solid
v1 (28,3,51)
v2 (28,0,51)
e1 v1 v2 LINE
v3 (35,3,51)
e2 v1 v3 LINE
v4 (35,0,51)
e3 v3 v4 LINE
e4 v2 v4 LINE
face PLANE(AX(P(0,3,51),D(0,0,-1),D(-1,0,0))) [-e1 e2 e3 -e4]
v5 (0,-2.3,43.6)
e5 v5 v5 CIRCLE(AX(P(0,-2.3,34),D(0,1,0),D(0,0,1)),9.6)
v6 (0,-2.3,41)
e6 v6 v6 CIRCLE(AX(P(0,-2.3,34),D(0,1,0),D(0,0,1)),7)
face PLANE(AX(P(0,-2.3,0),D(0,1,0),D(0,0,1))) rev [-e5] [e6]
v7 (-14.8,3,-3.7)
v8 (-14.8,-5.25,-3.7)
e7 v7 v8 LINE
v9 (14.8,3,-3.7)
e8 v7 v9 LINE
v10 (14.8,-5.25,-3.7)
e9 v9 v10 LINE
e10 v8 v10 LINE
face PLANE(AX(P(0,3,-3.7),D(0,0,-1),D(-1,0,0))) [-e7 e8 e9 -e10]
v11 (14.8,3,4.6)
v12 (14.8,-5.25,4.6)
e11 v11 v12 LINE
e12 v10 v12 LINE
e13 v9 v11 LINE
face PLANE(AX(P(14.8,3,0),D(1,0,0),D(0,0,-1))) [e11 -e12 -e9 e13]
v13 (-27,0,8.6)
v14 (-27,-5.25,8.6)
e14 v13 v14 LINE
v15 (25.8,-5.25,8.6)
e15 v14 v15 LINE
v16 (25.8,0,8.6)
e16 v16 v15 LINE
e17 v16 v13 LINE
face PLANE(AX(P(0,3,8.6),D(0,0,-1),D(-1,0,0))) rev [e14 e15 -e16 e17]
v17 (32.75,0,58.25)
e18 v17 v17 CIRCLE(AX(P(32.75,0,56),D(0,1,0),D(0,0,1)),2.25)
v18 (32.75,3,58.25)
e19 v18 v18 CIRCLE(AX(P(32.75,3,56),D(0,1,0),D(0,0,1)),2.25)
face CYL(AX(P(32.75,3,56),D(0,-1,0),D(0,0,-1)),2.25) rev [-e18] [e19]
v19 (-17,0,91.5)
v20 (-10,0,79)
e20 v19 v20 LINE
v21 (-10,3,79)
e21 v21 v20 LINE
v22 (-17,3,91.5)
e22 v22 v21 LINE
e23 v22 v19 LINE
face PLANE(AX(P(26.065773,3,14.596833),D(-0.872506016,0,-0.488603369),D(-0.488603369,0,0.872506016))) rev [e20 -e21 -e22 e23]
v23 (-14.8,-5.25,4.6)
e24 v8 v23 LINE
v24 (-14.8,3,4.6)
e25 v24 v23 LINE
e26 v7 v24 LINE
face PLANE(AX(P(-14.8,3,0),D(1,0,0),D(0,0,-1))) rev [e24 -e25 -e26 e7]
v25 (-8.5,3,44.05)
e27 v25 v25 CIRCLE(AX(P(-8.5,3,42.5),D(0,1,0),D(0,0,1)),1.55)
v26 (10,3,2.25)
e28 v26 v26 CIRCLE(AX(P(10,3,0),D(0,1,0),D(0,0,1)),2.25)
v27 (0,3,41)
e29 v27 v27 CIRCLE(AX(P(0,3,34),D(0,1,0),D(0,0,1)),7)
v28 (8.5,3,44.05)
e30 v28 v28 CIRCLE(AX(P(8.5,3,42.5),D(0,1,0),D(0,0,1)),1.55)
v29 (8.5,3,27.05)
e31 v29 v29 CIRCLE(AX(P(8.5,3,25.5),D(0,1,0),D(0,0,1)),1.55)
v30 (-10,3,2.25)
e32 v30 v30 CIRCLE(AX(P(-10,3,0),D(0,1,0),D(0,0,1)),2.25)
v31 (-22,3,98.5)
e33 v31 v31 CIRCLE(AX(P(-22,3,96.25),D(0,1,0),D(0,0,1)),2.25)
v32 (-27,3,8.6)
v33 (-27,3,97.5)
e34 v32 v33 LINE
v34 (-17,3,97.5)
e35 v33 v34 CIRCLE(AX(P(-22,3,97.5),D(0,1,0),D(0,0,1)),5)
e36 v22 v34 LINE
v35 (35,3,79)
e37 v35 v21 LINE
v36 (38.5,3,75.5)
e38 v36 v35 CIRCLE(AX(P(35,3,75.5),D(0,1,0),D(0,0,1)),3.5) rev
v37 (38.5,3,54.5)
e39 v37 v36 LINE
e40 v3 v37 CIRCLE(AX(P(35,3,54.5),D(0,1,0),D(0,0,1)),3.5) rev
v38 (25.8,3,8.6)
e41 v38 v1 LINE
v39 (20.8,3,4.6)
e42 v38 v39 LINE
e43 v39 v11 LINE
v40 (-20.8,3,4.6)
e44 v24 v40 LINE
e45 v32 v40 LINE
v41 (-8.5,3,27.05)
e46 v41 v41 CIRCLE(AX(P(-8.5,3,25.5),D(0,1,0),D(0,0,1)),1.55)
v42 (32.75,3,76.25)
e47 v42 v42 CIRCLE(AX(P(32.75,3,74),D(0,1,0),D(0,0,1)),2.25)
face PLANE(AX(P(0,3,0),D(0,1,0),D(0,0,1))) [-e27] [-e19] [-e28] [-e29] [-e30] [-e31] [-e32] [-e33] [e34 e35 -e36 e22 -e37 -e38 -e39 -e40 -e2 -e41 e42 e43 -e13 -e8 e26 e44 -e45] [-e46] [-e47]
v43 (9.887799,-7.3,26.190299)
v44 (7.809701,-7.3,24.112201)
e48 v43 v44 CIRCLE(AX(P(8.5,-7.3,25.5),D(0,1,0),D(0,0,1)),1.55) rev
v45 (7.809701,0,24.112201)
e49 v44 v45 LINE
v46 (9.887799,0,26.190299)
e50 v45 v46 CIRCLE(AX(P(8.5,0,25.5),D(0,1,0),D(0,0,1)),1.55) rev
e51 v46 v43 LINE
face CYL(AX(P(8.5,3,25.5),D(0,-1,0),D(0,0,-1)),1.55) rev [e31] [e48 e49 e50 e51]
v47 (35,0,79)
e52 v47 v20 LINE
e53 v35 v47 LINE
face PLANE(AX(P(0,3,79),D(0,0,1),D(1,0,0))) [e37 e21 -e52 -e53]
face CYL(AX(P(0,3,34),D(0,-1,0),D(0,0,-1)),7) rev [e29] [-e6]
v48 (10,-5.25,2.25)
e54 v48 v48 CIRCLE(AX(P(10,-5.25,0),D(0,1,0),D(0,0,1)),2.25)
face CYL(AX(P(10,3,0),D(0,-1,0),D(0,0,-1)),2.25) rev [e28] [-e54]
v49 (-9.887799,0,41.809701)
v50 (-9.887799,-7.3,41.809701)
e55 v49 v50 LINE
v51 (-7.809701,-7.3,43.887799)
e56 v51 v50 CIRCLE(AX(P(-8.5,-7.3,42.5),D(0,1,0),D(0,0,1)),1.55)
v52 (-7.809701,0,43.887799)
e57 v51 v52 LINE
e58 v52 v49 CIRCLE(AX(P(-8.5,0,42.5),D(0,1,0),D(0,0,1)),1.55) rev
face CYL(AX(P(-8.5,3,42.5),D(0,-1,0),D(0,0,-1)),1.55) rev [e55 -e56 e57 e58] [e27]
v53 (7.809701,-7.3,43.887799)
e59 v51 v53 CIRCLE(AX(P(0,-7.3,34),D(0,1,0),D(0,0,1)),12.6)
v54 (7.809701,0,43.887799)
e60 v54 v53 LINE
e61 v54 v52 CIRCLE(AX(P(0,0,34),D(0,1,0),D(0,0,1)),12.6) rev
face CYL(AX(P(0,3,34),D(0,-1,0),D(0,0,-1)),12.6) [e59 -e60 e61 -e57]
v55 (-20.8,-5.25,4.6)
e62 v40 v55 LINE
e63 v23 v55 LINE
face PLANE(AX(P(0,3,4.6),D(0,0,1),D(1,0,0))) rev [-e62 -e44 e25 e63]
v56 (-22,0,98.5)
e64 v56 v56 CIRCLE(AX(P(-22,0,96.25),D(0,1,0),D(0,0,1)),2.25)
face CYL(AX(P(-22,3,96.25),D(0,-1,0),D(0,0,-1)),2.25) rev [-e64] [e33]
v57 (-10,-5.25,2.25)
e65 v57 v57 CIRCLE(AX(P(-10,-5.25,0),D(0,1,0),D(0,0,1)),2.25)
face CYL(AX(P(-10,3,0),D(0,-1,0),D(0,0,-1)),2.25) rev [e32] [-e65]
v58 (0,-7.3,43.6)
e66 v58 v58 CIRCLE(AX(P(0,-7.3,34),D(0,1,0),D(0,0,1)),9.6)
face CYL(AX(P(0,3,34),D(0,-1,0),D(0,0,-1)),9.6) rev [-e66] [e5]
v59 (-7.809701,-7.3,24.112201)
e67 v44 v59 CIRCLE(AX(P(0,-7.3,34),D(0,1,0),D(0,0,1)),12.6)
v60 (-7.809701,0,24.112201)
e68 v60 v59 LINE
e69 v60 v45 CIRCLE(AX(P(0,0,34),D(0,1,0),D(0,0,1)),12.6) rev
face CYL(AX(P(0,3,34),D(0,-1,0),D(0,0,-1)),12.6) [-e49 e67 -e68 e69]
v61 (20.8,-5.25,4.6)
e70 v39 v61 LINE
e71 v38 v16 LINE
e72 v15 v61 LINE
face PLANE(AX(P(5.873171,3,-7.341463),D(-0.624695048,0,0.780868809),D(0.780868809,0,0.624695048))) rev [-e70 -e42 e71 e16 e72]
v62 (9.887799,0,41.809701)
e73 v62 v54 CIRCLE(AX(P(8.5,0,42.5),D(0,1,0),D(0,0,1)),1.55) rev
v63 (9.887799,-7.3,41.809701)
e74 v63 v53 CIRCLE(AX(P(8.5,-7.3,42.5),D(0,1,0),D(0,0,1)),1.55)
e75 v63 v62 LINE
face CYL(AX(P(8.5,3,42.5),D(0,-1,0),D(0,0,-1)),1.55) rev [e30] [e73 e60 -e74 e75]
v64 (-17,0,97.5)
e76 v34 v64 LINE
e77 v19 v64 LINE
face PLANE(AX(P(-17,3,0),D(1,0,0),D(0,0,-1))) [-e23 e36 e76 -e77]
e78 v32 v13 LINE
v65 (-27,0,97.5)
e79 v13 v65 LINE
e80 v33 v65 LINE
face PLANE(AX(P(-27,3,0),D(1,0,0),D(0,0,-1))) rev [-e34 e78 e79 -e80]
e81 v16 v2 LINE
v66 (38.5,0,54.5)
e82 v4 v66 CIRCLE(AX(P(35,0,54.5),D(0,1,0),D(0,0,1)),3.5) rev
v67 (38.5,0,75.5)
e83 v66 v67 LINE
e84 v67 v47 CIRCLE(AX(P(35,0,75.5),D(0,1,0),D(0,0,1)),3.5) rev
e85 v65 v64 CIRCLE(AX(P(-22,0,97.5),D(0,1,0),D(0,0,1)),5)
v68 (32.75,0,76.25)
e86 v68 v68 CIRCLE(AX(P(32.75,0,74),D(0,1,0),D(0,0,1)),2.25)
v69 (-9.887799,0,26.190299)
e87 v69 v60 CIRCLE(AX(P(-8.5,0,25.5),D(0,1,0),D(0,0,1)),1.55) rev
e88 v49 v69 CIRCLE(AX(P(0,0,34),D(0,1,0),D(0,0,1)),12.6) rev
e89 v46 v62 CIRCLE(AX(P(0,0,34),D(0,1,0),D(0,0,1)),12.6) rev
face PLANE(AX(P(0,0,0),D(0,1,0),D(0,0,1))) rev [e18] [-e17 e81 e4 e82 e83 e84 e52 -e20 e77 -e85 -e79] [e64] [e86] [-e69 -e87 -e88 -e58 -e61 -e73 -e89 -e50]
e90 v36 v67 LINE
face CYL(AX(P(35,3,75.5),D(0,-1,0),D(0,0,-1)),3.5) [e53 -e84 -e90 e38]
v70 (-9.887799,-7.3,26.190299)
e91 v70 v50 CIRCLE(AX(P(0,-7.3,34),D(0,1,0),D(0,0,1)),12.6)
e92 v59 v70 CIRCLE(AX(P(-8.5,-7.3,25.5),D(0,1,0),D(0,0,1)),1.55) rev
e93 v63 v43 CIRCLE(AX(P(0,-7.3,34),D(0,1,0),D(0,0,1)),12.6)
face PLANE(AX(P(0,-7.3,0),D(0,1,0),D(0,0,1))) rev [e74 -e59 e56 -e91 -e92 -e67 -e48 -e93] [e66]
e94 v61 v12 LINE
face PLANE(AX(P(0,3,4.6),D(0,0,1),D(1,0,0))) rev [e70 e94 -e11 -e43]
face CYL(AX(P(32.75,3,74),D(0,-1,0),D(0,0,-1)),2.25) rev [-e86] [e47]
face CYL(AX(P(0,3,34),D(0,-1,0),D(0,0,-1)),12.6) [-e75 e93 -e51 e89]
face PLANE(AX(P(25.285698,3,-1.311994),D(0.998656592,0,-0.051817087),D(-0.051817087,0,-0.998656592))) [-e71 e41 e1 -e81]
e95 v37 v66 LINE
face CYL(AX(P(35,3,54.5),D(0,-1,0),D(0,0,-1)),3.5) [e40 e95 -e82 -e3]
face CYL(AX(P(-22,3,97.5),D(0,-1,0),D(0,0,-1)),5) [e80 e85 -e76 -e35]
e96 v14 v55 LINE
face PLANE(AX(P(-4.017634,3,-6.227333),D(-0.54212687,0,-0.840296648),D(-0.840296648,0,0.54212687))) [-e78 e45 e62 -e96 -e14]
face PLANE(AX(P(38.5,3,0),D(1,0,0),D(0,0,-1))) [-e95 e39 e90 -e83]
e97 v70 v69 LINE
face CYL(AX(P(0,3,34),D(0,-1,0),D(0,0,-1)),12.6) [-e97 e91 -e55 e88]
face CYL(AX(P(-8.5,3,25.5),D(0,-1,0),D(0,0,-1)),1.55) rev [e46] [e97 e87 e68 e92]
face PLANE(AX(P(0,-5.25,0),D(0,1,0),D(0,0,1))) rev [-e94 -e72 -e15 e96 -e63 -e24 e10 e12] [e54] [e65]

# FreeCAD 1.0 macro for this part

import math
import FreeCAD as App
import Part
import Sketcher
from FreeCAD import Vector
Q = App.Units.Quantity

doc = App.newDocument("Part")
body = doc.addObject("PartDesign::Body", "Body")

sketch1 = body.newObject("Sketcher::SketchObject", "Sketch")
sketch1.AttachmentSupport = (doc.getObject("XZ_Plane"), [""])
sketch1.MapMode = "FlatFace"
sketch1.addGeometry(Part.ArcOfCircle(Part.Circle(Vector(-22, 97.5, 0), Vector(0, 0, 1), 5), math.radians(0), math.radians(180)), False)
sketch1.addGeometry(Part.LineSegment(Vector(-17, 97.5, 0), Vector(-17, 91.5, 0)), False)
sketch1.addGeometry(Part.LineSegment(Vector(-17, 91.5, 0), Vector(-10, 79, 0)), False)
sketch1.addGeometry(Part.LineSegment(Vector(-10, 79, 0), Vector(35, 79, 0)), False)
sketch1.addGeometry(Part.ArcOfCircle(Part.Circle(Vector(35, 75.5, 0), Vector(0, 0, 1), 3.5), math.radians(0), math.radians(90)), False)
sketch1.addGeometry(Part.LineSegment(Vector(38.5, 75.5, 0), Vector(38.5, 54.5, 0)), False)
sketch1.addGeometry(Part.ArcOfCircle(Part.Circle(Vector(35, 54.5, 0), Vector(0, 0, 1), 3.5), math.radians(-90), math.radians(0)), False)
sketch1.addGeometry(Part.LineSegment(Vector(35, 51, 0), Vector(28, 51, 0)), False)
sketch1.addGeometry(Part.LineSegment(Vector(28, 51, 0), Vector(25.8, 8.6, 0)), False)
sketch1.addGeometry(Part.LineSegment(Vector(25.8, 8.6, 0), Vector(20.8, 4.6, 0)), False)
sketch1.addGeometry(Part.LineSegment(Vector(20.8, 4.6, 0), Vector(-20.8, 4.6, 0)), False)
sketch1.addGeometry(Part.LineSegment(Vector(-20.8, 4.6, 0), Vector(-27, 8.6, 0)), False)
sketch1.addGeometry(Part.LineSegment(Vector(-27, 8.6, 0), Vector(-27, 97.5, 0)), False)
sketch1.addGeometry(Part.Circle(Vector(-22, 96.25, 0), Vector(0, 0, 1), 2.25), False)
sketch1.addGeometry(Part.Circle(Vector(0, 34, 0), Vector(0, 0, 1), 12.6), False)
sketch1.addGeometry(Part.Circle(Vector(32.75, 56, 0), Vector(0, 0, 1), 2.25), False)
sketch1.addGeometry(Part.Circle(Vector(32.75, 74, 0), Vector(0, 0, 1), 2.25), False)
sketch1.addConstraint(Sketcher.Constraint("Tangent", 0, 1, 1, 1))
sketch1.addConstraint(Sketcher.Constraint("Coincident", 1, 2, 2, 1))
sketch1.addConstraint(Sketcher.Constraint("Coincident", 2, 2, 3, 1))
sketch1.addConstraint(Sketcher.Constraint("Tangent", 3, 2, 4, 2))
sketch1.addConstraint(Sketcher.Constraint("Tangent", 4, 1, 5, 1))
sketch1.addConstraint(Sketcher.Constraint("Tangent", 5, 2, 6, 2))
sketch1.addConstraint(Sketcher.Constraint("Tangent", 6, 1, 7, 1))
sketch1.addConstraint(Sketcher.Constraint("Coincident", 7, 2, 8, 1))
sketch1.addConstraint(Sketcher.Constraint("Coincident", 8, 2, 9, 1))
sketch1.addConstraint(Sketcher.Constraint("Coincident", 9, 2, 10, 1))
sketch1.addConstraint(Sketcher.Constraint("Coincident", 10, 2, 11, 1))
sketch1.addConstraint(Sketcher.Constraint("Coincident", 11, 2, 12, 1))
sketch1.addConstraint(Sketcher.Constraint("Tangent", 12, 2, 0, 2))
sketch1.addConstraint(Sketcher.Constraint("Vertical", 1))
sketch1.addConstraint(Sketcher.Constraint("Horizontal", 3))
sketch1.addConstraint(Sketcher.Constraint("Vertical", 5))
sketch1.addConstraint(Sketcher.Constraint("Horizontal", 7))
sketch1.addConstraint(Sketcher.Constraint("Horizontal", 10))
sketch1.addConstraint(Sketcher.Constraint("Vertical", 12))
sketch1.addConstraint(Sketcher.Constraint("Equal", 4, 6))
sketch1.addConstraint(Sketcher.Constraint("Equal", 13, 15))
sketch1.addConstraint(Sketcher.Constraint("Equal", 15, 16))
sketch1.addConstraint(Sketcher.Constraint("PointOnObject", 14, 3, -2))
sketch1.addConstraint(Sketcher.Constraint("Horizontal", 8, 2, 11, 2))
sketch1.addConstraint(Sketcher.Constraint("Vertical", 0, 3, 13, 3))
sketch1.addConstraint(Sketcher.Constraint("Vertical", 15, 3, 16, 3))
sketch1.addConstraint(Sketcher.Constraint("Radius", 0, Q("5 mm")))
sketch1.addConstraint(Sketcher.Constraint("Diameter", 13, Q("4.5 mm")))
sketch1.addConstraint(Sketcher.Constraint("Diameter", 14, Q("25.2 mm")))
sketch1.addConstraint(Sketcher.Constraint("Radius", 4, Q("3.5 mm")))
sketch1.addConstraint(Sketcher.Constraint("DistanceX", 3, 1, 3, 2, Q("45 mm")))
sketch1.addConstraint(Sketcher.Constraint("DistanceX", 7, 2, 7, 1, Q("7 mm")))
sketch1.addConstraint(Sketcher.Constraint("DistanceY", 1, 2, 1, 1, Q("6 mm")))
sketch1.addConstraint(Sketcher.Constraint("DistanceY", 5, 2, 5, 1, Q("21 mm")))
sketch1.addConstraint(Sketcher.Constraint("DistanceX", 10, 2, 10, 1, Q("41.6 mm")))
sketch1.addConstraint(Sketcher.Constraint("DistanceY", 12, 1, 12, 2, Q("88.9 mm")))
sketch1.addConstraint(Sketcher.Constraint("DistanceX", 0, 3, -1, 1, Q("22 mm")))
sketch1.addConstraint(Sketcher.Constraint("DistanceX", -1, 1, 4, 3, Q("35 mm")))
sketch1.addConstraint(Sketcher.Constraint("DistanceY", -1, 1, 14, 3, Q("34 mm")))
sketch1.addConstraint(Sketcher.Constraint("DistanceY", -1, 1, 15, 3, Q("56 mm")))
sketch1.addConstraint(Sketcher.Constraint("DistanceY", -1, 1, 16, 3, Q("74 mm")))
sketch1.addConstraint(Sketcher.Constraint("DistanceY", -1, 1, 2, 2, Q("79 mm")))
sketch1.addConstraint(Sketcher.Constraint("DistanceY", 4, 3, 0, 3, Q("22 mm")))
sketch1.addConstraint(Sketcher.Constraint("DistanceX", 9, 2, 8, 2, Q("5 mm")))
sketch1.addConstraint(Sketcher.Constraint("DistanceY", 9, 2, 8, 2, Q("4 mm")))
sketch1.addConstraint(Sketcher.Constraint("DistanceX", -1, 1, 8, 2, Q("25.8 mm")))
sketch1.addConstraint(Sketcher.Constraint("DistanceY", -1, 1, 13, 3, Q("96.25 mm")))
sketch1.addConstraint(Sketcher.Constraint("DistanceX", -1, 1, 15, 3, Q("32.75 mm")))
pad1 = body.newObject("PartDesign::Pad", "Pad")
pad1.Profile = sketch1
pad1.Length = 3
pad1.Reversed = True

sketch2 = body.newObject("Sketcher::SketchObject", "Sketch001")
sketch2.AttachmentSupport = (doc.getObject("XZ_Plane"), [""])
sketch2.MapMode = "FlatFace"
sketch2.addGeometry(Part.Circle(Vector(0, 34, 0), Vector(0, 0, 1), 12.6), False)
sketch2.addGeometry(Part.Circle(Vector(0, 34, 0), Vector(0, 0, 1), 9.6), False)
sketch2.addConstraint(Sketcher.Constraint("Coincident", 1, 3, 0, 3))
sketch2.addConstraint(Sketcher.Constraint("PointOnObject", 0, 3, -2))
sketch2.addConstraint(Sketcher.Constraint("Diameter", 0, Q("25.2 mm")))
sketch2.addConstraint(Sketcher.Constraint("Diameter", 1, Q("19.2 mm")))
sketch2.addConstraint(Sketcher.Constraint("DistanceY", -1, 1, 0, 3, Q("34 mm")))
pad2 = body.newObject("PartDesign::Pad", "Pad001")
pad2.Profile = sketch2
pad2.Type = "TwoLengths"
pad2.Length = 3
pad2.Length2 = 7.3
pad2.Reversed = True

sketch3 = body.newObject("Sketcher::SketchObject", "Sketch002")
sketch3.AttachmentSupport = (doc.getObject("XZ_Plane"), [""])
sketch3.MapMode = "FlatFace"
sketch3.addGeometry(Part.Circle(Vector(0, 34, 0), Vector(0, 0, 1), 9.6), False)
sketch3.addGeometry(Part.Circle(Vector(0, 34, 0), Vector(0, 0, 1), 7), False)
sketch3.addConstraint(Sketcher.Constraint("Coincident", 1, 3, 0, 3))
sketch3.addConstraint(Sketcher.Constraint("PointOnObject", 0, 3, -2))
sketch3.addConstraint(Sketcher.Constraint("Diameter", 1, Q("14 mm")))
sketch3.addConstraint(Sketcher.Constraint("Diameter", 0, Q("19.2 mm")))
sketch3.addConstraint(Sketcher.Constraint("DistanceY", -1, 1, 0, 3, Q("34 mm")))
pad3 = body.newObject("PartDesign::Pad", "Pad002")
pad3.Profile = sketch3
pad3.Type = "TwoLengths"
pad3.Length = 3
pad3.Length2 = 2.3
pad3.Reversed = True

sketch4 = body.newObject("Sketcher::SketchObject", "Sketch003")
sketch4.AttachmentSupport = (doc.getObject("XZ_Plane"), [""])
sketch4.MapMode = "FlatFace"
sketch4.addGeometry(Part.Circle(Vector(0, 34, 0), Vector(0, 0, 1), 7), False)
sketch4.addGeometry(Part.Circle(Vector(-8.5, 25.5, 0), Vector(0, 0, 1), 1.55), False)
sketch4.addGeometry(Part.Circle(Vector(8.5, 25.5, 0), Vector(0, 0, 1), 1.55), False)
sketch4.addGeometry(Part.Circle(Vector(8.5, 42.5, 0), Vector(0, 0, 1), 1.55), False)
sketch4.addGeometry(Part.Circle(Vector(-8.5, 42.5, 0), Vector(0, 0, 1), 1.55), False)
sketch4.addConstraint(Sketcher.Constraint("Equal", 1, 2))
sketch4.addConstraint(Sketcher.Constraint("Equal", 2, 3))
sketch4.addConstraint(Sketcher.Constraint("Equal", 3, 4))
sketch4.addConstraint(Sketcher.Constraint("Symmetric", 1, 3, 2, 3, -2))
sketch4.addConstraint(Sketcher.Constraint("Symmetric", 3, 3, 4, 3, -2))
sketch4.addConstraint(Sketcher.Constraint("PointOnObject", 0, 3, -2))
sketch4.addConstraint(Sketcher.Constraint("Vertical", 2, 3, 3, 3))
sketch4.addConstraint(Sketcher.Constraint("Diameter", 0, Q("14 mm")))
sketch4.addConstraint(Sketcher.Constraint("Diameter", 1, Q("3.1 mm")))
sketch4.addConstraint(Sketcher.Constraint("DistanceY", -1, 1, 0, 3, Q("34 mm")))
sketch4.addConstraint(Sketcher.Constraint("DistanceX", 1, 3, 2, 3, Q("17 mm")))
sketch4.addConstraint(Sketcher.Constraint("DistanceY", 2, 3, 3, 3, Q("17 mm")))
sketch4.addConstraint(Sketcher.Constraint("DistanceY", -1, 1, 1, 3, Q("25.5 mm")))
pocket1 = body.newObject("PartDesign::Pocket", "Pocket")
pocket1.Profile = sketch4
pocket1.Type = "ThroughAll"
pocket1.Midplane = True

sketch5 = body.newObject("Sketcher::SketchObject", "Sketch004")
sketch5.AttachmentSupport = (doc.getObject("XZ_Plane"), [""])
sketch5.MapMode = "FlatFace"
sketch5.addGeometry(Part.LineSegment(Vector(-20.8, 4.6, 0), Vector(-27, 8.6, 0)), False)
sketch5.addGeometry(Part.LineSegment(Vector(-27, 8.6, 0), Vector(25.8, 8.6, 0)), False)
sketch5.addGeometry(Part.LineSegment(Vector(25.8, 8.6, 0), Vector(20.8, 4.6, 0)), False)
sketch5.addGeometry(Part.LineSegment(Vector(20.8, 4.6, 0), Vector(14.8, 4.6, 0)), False)
sketch5.addGeometry(Part.LineSegment(Vector(14.8, 4.6, 0), Vector(14.8, -3.7, 0)), False)
sketch5.addGeometry(Part.LineSegment(Vector(14.8, -3.7, 0), Vector(-14.8, -3.7, 0)), False)
sketch5.addGeometry(Part.LineSegment(Vector(-14.8, -3.7, 0), Vector(-14.8, 4.6, 0)), False)
sketch5.addGeometry(Part.LineSegment(Vector(-14.8, 4.6, 0), Vector(-20.8, 4.6, 0)), False)
sketch5.addGeometry(Part.Circle(Vector(10, 0, 0), Vector(0, 0, 1), 2.25), False)
sketch5.addGeometry(Part.Circle(Vector(-10, 0, 0), Vector(0, 0, 1), 2.25), False)
sketch5.addConstraint(Sketcher.Constraint("Coincident", 0, 2, 1, 1))
sketch5.addConstraint(Sketcher.Constraint("Coincident", 1, 2, 2, 1))
sketch5.addConstraint(Sketcher.Constraint("Coincident", 2, 2, 3, 1))
sketch5.addConstraint(Sketcher.Constraint("Coincident", 3, 2, 4, 1))
sketch5.addConstraint(Sketcher.Constraint("Coincident", 4, 2, 5, 1))
sketch5.addConstraint(Sketcher.Constraint("Coincident", 5, 2, 6, 1))
sketch5.addConstraint(Sketcher.Constraint("Coincident", 6, 2, 7, 1))
sketch5.addConstraint(Sketcher.Constraint("Coincident", 7, 2, 0, 1))
sketch5.addConstraint(Sketcher.Constraint("Horizontal", 1))
sketch5.addConstraint(Sketcher.Constraint("Horizontal", 3))
sketch5.addConstraint(Sketcher.Constraint("Vertical", 4))
sketch5.addConstraint(Sketcher.Constraint("Horizontal", 5))
sketch5.addConstraint(Sketcher.Constraint("Vertical", 6))
sketch5.addConstraint(Sketcher.Constraint("Horizontal", 7))
sketch5.addConstraint(Sketcher.Constraint("Equal", 8, 9))
sketch5.addConstraint(Sketcher.Constraint("Symmetric", 8, 3, 9, 3, -1, 1))
sketch5.addConstraint(Sketcher.Constraint("Symmetric", 3, 2, 6, 2, -2))
sketch5.addConstraint(Sketcher.Constraint("PointOnObject", 8, 3, -1))
sketch5.addConstraint(Sketcher.Constraint("Equal", 3, 7))
sketch5.addConstraint(Sketcher.Constraint("Diameter", 8, Q("4.5 mm")))
sketch5.addConstraint(Sketcher.Constraint("DistanceX", 3, 2, 3, 1, Q("6 mm")))
sketch5.addConstraint(Sketcher.Constraint("DistanceX", 1, 1, 1, 2, Q("52.8 mm")))
sketch5.addConstraint(Sketcher.Constraint("DistanceX", 5, 2, 5, 1, Q("29.6 mm")))
sketch5.addConstraint(Sketcher.Constraint("DistanceY", 4, 2, 4, 1, Q("8.3 mm")))
sketch5.addConstraint(Sketcher.Constraint("DistanceX", -1, 1, 8, 3, Q("10 mm")))
sketch5.addConstraint(Sketcher.Constraint("DistanceX", 0, 2, -1, 1, Q("27 mm")))
sketch5.addConstraint(Sketcher.Constraint("DistanceY", 2, 2, 1, 2, Q("4 mm")))
sketch5.addConstraint(Sketcher.Constraint("DistanceY", -1, 1, 0, 2, Q("8.6 mm")))
pad4 = body.newObject("PartDesign::Pad", "Pad003")
pad4.Profile = sketch5
pad4.Type = "TwoLengths"
pad4.Length = 3
pad4.Length2 = 5.25
pad4.Reversed = True

doc.recompute()
